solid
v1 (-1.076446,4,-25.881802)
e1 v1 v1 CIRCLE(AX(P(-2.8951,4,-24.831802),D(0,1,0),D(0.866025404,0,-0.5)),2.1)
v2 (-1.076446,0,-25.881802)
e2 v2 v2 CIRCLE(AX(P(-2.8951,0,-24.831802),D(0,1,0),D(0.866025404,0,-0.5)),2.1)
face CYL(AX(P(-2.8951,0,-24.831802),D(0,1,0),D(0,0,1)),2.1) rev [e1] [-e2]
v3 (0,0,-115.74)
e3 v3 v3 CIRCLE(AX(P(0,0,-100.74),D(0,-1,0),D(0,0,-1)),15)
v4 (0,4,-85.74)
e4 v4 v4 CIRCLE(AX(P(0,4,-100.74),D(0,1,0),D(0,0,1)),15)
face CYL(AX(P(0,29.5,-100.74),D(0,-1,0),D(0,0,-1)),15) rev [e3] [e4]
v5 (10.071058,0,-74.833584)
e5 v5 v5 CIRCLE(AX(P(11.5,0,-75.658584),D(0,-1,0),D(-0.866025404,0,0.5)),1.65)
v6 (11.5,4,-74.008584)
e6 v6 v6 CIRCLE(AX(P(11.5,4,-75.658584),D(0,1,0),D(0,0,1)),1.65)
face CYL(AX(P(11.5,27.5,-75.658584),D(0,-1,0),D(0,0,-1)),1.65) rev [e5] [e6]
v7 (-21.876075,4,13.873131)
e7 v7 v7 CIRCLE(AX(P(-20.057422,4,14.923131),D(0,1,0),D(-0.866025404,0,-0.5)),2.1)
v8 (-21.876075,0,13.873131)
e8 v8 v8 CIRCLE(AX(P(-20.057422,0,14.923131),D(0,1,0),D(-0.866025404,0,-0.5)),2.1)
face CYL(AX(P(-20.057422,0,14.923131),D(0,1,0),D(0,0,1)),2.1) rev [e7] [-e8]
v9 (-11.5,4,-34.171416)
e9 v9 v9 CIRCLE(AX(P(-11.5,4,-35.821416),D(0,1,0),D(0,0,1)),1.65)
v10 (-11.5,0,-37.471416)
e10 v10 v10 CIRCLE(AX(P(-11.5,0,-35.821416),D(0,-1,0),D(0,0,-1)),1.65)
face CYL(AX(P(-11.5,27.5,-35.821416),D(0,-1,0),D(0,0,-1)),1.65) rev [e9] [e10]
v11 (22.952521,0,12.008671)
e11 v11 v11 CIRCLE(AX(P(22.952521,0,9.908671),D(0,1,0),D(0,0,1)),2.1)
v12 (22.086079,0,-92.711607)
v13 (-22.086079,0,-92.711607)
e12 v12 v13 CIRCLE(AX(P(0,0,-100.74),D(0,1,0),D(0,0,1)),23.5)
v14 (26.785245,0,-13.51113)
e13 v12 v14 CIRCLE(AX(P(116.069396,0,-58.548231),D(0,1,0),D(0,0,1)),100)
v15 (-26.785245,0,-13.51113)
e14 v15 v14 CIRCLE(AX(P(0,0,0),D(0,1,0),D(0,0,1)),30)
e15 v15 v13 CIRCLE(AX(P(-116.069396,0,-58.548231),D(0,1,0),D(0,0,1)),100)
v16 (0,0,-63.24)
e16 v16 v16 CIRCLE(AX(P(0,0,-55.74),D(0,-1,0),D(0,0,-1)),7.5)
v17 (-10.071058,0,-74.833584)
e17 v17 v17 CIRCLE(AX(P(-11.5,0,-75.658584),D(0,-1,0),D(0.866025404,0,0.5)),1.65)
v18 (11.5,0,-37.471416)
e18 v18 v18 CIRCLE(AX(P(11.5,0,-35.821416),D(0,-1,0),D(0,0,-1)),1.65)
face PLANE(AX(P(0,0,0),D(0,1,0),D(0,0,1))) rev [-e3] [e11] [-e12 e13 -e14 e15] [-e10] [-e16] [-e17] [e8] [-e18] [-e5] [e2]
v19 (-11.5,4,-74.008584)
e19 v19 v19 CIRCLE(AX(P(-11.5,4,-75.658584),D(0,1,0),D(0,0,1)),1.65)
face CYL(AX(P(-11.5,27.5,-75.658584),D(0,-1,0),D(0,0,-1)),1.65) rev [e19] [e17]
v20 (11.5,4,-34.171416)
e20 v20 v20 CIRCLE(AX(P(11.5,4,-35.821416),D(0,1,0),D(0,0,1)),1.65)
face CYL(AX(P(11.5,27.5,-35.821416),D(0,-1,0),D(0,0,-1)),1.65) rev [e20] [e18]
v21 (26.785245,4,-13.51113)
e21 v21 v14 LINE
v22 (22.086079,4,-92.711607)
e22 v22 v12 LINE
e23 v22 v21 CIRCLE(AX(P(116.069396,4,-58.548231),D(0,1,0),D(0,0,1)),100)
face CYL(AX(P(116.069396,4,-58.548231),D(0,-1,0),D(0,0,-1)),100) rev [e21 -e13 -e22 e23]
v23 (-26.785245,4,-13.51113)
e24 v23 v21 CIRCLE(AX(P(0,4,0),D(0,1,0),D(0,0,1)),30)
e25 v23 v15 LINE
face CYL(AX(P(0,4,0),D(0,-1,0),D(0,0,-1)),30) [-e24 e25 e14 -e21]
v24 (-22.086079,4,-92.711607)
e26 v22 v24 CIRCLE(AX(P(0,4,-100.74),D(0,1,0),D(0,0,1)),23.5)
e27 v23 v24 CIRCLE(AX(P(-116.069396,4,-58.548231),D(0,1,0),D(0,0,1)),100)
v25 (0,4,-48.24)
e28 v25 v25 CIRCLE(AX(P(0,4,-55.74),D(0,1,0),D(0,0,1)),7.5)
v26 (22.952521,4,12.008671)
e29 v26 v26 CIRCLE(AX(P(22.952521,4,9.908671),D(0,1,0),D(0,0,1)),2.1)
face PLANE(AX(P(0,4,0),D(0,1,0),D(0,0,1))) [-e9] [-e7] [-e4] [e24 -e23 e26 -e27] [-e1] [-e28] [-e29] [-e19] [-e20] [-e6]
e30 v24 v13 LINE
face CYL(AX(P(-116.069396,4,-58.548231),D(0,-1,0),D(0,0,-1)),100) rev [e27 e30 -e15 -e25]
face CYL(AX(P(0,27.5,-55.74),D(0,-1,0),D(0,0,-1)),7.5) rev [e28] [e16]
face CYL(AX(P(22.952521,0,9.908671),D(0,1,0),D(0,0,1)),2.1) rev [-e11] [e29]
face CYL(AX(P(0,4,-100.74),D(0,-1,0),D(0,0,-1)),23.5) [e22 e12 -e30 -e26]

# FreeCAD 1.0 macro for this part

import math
import FreeCAD as App
import Part
import Sketcher

V = App.Vector
Q = App.Units.Quantity

doc = App.newDocument("Part")
params = doc.addObject("Spreadsheet::Sheet", "Params")
for row, (alias, value) in enumerate([
    ("sketch1_radius", "100 mm"),
    ("sketch1_radius2", "30 mm"),
    ("sketch1_radius3", "23.5 mm"),
    ("pad1_length", "4 mm"),
    ("sketch2_diameter", "4.2 mm"),
    ("pocket1_length", "4 mm"),
    ("sketch3_diameter", "15 mm"),
    ("pocket2_length", "27.5 mm"),
    ("sketch4_diameter", "3.3 mm"),
    ("pocket3_length", "27.5 mm"),
    ("sketch5_diameter", "30 mm"),
    ("pocket4_length", "29.5 mm"),
], start=1):
    params.set(f"A{row}", alias)
    params.set(f"B{row}", "=" + value)
    params.setAlias(f"B{row}", alias)

body = doc.addObject("PartDesign::Body", "Body")

sketch1 = body.newObject("Sketcher::SketchObject", "Sketch")
sketch1.AttachmentSupport = (doc.getObject("XZ_Plane"), [""])
sketch1.MapMode = "FlatFace"
sketch1.addGeometry([
    Part.ArcOfCircle(Part.Circle(V(116, -59, 0), V(0, 0, 1), 100), math.radians(153), math.radians(200)),
    Part.ArcOfCircle(Part.Circle(V(0, -101, 0), V(0, 0, 1), 24), math.radians(160), math.radians(380)),
    Part.ArcOfCircle(Part.Circle(V(-116, -59, 0), V(0, 0, 1), 100), math.radians(-20), math.radians(27)),
    Part.ArcOfCircle(Part.Circle(V(0, 0, 0), V(0, 0, 1), 30), math.radians(-27), math.radians(207)),
], False)
sketch1.addConstraint([
    Sketcher.Constraint("Tangent", 0, 2, 1, 2),
    Sketcher.Constraint("Tangent", 1, 1, 2, 1),
    Sketcher.Constraint("Tangent", 2, 2, 3, 2),
    Sketcher.Constraint("Tangent", 3, 1, 0, 1),
    Sketcher.Constraint("Coincident", 3, 3, -1, 1),
    Sketcher.Constraint("Equal", 0, 2),
    Sketcher.Constraint("PointOnObject", 1, 3, -2),
    Sketcher.Constraint("Radius", 0, Q("100 mm")),
    Sketcher.Constraint("Radius", 3, Q("30 mm")),
    Sketcher.Constraint("Radius", 1, Q("23.5 mm")),
    Sketcher.Constraint("DistanceY", 1, 3, -1, 1, Q("100.74 mm")),
])
sketch1.setExpression("Constraints[7]", "Params.sketch1_radius")
sketch1.setExpression("Constraints[8]", "Params.sketch1_radius2")
sketch1.setExpression("Constraints[9]", "Params.sketch1_radius3")
pad1 = body.newObject("PartDesign::Pad", "Pad")
pad1.Profile = sketch1
pad1.setExpression("Length", "Params.pad1_length")
pad1.Reversed = True

sketch2 = body.newObject("Sketcher::SketchObject", "Sketch001")
sketch2.AttachmentSupport = (doc.getObject("XZ_Plane"), [""])
sketch2.MapMode = "FlatFace"
sketch2.AttachmentOffset = App.Placement(V(0, 0, -4), App.Rotation())
sketch2.addGeometry(Part.Circle(V(23, 9.9, 0), V(0, 0, 1), 2.1), False)
sketch2.addConstraint([
    Sketcher.Constraint("Diameter", 0, Q("4.2 mm")),
    Sketcher.Constraint("DistanceX", -1, 1, 0, 3, Q("22.952521 mm")),
    Sketcher.Constraint("DistanceY", -1, 1, 0, 3, Q("9.908671 mm")),
])
sketch2.setExpression("Constraints[0]", "Params.sketch2_diameter")
pocket1 = body.newObject("PartDesign::Pocket", "Pocket")
pocket1.Profile = sketch2
pocket1.setExpression("Length", "Params.pocket1_length")
pocket1.Reversed = True
doc.recompute()

polarpattern = body.newObject("PartDesign::PolarPattern", "PolarPattern")
polarpattern.Originals = [pocket1]
polarpattern.Axis = (doc.getObject("Y_Axis"), [""])
polarpattern.Angle = 360
polarpattern.Occurrences = 3
body.Tip = polarpattern

sketch3 = body.newObject("Sketcher::SketchObject", "Sketch002")
sketch3.AttachmentSupport = (doc.getObject("XZ_Plane"), [""])
sketch3.MapMode = "FlatFace"
sketch3.addGeometry(Part.Circle(V(0, -56, 0), V(0, 0, 1), 8), False)
sketch3.addConstraint([
    Sketcher.Constraint("PointOnObject", 0, 3, -2),
    Sketcher.Constraint("Diameter", 0, Q("15 mm")),
    Sketcher.Constraint("DistanceY", 0, 3, -1, 1, Q("55.74 mm")),
])
sketch3.setExpression("Constraints[1]", "Params.sketch3_diameter")
pocket2 = body.newObject("PartDesign::Pocket", "Pocket001")
pocket2.Profile = sketch3
pocket2.setExpression("Length", "Params.pocket2_length")

sketch4 = body.newObject("Sketcher::SketchObject", "Sketch003")
sketch4.AttachmentSupport = (doc.getObject("XZ_Plane"), [""])
sketch4.MapMode = "FlatFace"
sketch4.addGeometry([
    Part.Circle(V(-11.5, -35.8, 0), V(0, 0, 1), 1.6),
    Part.Circle(V(11.5, -35.8, 0), V(0, 0, 1), 1.6),
], False)
sketch4.addConstraint([
    Sketcher.Constraint("Equal", 0, 1),
    Sketcher.Constraint("Symmetric", 0, 3, 1, 3, -2),
    Sketcher.Constraint("Diameter", 0, Q("3.3 mm")),
    Sketcher.Constraint("DistanceX", 0, 3, 1, 3, Q("23 mm")),
    Sketcher.Constraint("DistanceY", 0, 3, -1, 1, Q("35.821416 mm")),
])
sketch4.setExpression("Constraints[2]", "Params.sketch4_diameter")
pocket3 = body.newObject("PartDesign::Pocket", "Pocket002")
pocket3.Profile = sketch4
pocket3.setExpression("Length", "Params.pocket3_length")
doc.recompute()

datumline = body.newObject("PartDesign::Line", "DatumLine")
datumline.Placement = App.Placement(V(0, 0, -55.74), App.Rotation(V(0, 0, 1), V(0, 1, 0)))
polarpattern2 = body.newObject("PartDesign::PolarPattern", "PolarPattern001")
polarpattern2.Originals = [pocket3]
polarpattern2.Axis = (datumline, [""])
polarpattern2.Angle = 360
polarpattern2.Occurrences = 3
body.Tip = polarpattern2

sketch5 = body.newObject("Sketcher::SketchObject", "Sketch004")
sketch5.AttachmentSupport = (doc.getObject("XZ_Plane"), [""])
sketch5.MapMode = "FlatFace"
sketch5.addGeometry(Part.Circle(V(0, -101, 0), V(0, 0, 1), 15), False)
sketch5.addConstraint([
    Sketcher.Constraint("PointOnObject", 0, 3, -2),
    Sketcher.Constraint("Diameter", 0, Q("30 mm")),
    Sketcher.Constraint("DistanceY", 0, 3, -1, 1, Q("100.74 mm")),
])
sketch5.setExpression("Constraints[1]", "Params.sketch5_diameter")
pocket4 = body.newObject("PartDesign::Pocket", "Pocket003")
pocket4.Profile = sketch5
pocket4.setExpression("Length", "Params.pocket4_length")

doc.recompute()
